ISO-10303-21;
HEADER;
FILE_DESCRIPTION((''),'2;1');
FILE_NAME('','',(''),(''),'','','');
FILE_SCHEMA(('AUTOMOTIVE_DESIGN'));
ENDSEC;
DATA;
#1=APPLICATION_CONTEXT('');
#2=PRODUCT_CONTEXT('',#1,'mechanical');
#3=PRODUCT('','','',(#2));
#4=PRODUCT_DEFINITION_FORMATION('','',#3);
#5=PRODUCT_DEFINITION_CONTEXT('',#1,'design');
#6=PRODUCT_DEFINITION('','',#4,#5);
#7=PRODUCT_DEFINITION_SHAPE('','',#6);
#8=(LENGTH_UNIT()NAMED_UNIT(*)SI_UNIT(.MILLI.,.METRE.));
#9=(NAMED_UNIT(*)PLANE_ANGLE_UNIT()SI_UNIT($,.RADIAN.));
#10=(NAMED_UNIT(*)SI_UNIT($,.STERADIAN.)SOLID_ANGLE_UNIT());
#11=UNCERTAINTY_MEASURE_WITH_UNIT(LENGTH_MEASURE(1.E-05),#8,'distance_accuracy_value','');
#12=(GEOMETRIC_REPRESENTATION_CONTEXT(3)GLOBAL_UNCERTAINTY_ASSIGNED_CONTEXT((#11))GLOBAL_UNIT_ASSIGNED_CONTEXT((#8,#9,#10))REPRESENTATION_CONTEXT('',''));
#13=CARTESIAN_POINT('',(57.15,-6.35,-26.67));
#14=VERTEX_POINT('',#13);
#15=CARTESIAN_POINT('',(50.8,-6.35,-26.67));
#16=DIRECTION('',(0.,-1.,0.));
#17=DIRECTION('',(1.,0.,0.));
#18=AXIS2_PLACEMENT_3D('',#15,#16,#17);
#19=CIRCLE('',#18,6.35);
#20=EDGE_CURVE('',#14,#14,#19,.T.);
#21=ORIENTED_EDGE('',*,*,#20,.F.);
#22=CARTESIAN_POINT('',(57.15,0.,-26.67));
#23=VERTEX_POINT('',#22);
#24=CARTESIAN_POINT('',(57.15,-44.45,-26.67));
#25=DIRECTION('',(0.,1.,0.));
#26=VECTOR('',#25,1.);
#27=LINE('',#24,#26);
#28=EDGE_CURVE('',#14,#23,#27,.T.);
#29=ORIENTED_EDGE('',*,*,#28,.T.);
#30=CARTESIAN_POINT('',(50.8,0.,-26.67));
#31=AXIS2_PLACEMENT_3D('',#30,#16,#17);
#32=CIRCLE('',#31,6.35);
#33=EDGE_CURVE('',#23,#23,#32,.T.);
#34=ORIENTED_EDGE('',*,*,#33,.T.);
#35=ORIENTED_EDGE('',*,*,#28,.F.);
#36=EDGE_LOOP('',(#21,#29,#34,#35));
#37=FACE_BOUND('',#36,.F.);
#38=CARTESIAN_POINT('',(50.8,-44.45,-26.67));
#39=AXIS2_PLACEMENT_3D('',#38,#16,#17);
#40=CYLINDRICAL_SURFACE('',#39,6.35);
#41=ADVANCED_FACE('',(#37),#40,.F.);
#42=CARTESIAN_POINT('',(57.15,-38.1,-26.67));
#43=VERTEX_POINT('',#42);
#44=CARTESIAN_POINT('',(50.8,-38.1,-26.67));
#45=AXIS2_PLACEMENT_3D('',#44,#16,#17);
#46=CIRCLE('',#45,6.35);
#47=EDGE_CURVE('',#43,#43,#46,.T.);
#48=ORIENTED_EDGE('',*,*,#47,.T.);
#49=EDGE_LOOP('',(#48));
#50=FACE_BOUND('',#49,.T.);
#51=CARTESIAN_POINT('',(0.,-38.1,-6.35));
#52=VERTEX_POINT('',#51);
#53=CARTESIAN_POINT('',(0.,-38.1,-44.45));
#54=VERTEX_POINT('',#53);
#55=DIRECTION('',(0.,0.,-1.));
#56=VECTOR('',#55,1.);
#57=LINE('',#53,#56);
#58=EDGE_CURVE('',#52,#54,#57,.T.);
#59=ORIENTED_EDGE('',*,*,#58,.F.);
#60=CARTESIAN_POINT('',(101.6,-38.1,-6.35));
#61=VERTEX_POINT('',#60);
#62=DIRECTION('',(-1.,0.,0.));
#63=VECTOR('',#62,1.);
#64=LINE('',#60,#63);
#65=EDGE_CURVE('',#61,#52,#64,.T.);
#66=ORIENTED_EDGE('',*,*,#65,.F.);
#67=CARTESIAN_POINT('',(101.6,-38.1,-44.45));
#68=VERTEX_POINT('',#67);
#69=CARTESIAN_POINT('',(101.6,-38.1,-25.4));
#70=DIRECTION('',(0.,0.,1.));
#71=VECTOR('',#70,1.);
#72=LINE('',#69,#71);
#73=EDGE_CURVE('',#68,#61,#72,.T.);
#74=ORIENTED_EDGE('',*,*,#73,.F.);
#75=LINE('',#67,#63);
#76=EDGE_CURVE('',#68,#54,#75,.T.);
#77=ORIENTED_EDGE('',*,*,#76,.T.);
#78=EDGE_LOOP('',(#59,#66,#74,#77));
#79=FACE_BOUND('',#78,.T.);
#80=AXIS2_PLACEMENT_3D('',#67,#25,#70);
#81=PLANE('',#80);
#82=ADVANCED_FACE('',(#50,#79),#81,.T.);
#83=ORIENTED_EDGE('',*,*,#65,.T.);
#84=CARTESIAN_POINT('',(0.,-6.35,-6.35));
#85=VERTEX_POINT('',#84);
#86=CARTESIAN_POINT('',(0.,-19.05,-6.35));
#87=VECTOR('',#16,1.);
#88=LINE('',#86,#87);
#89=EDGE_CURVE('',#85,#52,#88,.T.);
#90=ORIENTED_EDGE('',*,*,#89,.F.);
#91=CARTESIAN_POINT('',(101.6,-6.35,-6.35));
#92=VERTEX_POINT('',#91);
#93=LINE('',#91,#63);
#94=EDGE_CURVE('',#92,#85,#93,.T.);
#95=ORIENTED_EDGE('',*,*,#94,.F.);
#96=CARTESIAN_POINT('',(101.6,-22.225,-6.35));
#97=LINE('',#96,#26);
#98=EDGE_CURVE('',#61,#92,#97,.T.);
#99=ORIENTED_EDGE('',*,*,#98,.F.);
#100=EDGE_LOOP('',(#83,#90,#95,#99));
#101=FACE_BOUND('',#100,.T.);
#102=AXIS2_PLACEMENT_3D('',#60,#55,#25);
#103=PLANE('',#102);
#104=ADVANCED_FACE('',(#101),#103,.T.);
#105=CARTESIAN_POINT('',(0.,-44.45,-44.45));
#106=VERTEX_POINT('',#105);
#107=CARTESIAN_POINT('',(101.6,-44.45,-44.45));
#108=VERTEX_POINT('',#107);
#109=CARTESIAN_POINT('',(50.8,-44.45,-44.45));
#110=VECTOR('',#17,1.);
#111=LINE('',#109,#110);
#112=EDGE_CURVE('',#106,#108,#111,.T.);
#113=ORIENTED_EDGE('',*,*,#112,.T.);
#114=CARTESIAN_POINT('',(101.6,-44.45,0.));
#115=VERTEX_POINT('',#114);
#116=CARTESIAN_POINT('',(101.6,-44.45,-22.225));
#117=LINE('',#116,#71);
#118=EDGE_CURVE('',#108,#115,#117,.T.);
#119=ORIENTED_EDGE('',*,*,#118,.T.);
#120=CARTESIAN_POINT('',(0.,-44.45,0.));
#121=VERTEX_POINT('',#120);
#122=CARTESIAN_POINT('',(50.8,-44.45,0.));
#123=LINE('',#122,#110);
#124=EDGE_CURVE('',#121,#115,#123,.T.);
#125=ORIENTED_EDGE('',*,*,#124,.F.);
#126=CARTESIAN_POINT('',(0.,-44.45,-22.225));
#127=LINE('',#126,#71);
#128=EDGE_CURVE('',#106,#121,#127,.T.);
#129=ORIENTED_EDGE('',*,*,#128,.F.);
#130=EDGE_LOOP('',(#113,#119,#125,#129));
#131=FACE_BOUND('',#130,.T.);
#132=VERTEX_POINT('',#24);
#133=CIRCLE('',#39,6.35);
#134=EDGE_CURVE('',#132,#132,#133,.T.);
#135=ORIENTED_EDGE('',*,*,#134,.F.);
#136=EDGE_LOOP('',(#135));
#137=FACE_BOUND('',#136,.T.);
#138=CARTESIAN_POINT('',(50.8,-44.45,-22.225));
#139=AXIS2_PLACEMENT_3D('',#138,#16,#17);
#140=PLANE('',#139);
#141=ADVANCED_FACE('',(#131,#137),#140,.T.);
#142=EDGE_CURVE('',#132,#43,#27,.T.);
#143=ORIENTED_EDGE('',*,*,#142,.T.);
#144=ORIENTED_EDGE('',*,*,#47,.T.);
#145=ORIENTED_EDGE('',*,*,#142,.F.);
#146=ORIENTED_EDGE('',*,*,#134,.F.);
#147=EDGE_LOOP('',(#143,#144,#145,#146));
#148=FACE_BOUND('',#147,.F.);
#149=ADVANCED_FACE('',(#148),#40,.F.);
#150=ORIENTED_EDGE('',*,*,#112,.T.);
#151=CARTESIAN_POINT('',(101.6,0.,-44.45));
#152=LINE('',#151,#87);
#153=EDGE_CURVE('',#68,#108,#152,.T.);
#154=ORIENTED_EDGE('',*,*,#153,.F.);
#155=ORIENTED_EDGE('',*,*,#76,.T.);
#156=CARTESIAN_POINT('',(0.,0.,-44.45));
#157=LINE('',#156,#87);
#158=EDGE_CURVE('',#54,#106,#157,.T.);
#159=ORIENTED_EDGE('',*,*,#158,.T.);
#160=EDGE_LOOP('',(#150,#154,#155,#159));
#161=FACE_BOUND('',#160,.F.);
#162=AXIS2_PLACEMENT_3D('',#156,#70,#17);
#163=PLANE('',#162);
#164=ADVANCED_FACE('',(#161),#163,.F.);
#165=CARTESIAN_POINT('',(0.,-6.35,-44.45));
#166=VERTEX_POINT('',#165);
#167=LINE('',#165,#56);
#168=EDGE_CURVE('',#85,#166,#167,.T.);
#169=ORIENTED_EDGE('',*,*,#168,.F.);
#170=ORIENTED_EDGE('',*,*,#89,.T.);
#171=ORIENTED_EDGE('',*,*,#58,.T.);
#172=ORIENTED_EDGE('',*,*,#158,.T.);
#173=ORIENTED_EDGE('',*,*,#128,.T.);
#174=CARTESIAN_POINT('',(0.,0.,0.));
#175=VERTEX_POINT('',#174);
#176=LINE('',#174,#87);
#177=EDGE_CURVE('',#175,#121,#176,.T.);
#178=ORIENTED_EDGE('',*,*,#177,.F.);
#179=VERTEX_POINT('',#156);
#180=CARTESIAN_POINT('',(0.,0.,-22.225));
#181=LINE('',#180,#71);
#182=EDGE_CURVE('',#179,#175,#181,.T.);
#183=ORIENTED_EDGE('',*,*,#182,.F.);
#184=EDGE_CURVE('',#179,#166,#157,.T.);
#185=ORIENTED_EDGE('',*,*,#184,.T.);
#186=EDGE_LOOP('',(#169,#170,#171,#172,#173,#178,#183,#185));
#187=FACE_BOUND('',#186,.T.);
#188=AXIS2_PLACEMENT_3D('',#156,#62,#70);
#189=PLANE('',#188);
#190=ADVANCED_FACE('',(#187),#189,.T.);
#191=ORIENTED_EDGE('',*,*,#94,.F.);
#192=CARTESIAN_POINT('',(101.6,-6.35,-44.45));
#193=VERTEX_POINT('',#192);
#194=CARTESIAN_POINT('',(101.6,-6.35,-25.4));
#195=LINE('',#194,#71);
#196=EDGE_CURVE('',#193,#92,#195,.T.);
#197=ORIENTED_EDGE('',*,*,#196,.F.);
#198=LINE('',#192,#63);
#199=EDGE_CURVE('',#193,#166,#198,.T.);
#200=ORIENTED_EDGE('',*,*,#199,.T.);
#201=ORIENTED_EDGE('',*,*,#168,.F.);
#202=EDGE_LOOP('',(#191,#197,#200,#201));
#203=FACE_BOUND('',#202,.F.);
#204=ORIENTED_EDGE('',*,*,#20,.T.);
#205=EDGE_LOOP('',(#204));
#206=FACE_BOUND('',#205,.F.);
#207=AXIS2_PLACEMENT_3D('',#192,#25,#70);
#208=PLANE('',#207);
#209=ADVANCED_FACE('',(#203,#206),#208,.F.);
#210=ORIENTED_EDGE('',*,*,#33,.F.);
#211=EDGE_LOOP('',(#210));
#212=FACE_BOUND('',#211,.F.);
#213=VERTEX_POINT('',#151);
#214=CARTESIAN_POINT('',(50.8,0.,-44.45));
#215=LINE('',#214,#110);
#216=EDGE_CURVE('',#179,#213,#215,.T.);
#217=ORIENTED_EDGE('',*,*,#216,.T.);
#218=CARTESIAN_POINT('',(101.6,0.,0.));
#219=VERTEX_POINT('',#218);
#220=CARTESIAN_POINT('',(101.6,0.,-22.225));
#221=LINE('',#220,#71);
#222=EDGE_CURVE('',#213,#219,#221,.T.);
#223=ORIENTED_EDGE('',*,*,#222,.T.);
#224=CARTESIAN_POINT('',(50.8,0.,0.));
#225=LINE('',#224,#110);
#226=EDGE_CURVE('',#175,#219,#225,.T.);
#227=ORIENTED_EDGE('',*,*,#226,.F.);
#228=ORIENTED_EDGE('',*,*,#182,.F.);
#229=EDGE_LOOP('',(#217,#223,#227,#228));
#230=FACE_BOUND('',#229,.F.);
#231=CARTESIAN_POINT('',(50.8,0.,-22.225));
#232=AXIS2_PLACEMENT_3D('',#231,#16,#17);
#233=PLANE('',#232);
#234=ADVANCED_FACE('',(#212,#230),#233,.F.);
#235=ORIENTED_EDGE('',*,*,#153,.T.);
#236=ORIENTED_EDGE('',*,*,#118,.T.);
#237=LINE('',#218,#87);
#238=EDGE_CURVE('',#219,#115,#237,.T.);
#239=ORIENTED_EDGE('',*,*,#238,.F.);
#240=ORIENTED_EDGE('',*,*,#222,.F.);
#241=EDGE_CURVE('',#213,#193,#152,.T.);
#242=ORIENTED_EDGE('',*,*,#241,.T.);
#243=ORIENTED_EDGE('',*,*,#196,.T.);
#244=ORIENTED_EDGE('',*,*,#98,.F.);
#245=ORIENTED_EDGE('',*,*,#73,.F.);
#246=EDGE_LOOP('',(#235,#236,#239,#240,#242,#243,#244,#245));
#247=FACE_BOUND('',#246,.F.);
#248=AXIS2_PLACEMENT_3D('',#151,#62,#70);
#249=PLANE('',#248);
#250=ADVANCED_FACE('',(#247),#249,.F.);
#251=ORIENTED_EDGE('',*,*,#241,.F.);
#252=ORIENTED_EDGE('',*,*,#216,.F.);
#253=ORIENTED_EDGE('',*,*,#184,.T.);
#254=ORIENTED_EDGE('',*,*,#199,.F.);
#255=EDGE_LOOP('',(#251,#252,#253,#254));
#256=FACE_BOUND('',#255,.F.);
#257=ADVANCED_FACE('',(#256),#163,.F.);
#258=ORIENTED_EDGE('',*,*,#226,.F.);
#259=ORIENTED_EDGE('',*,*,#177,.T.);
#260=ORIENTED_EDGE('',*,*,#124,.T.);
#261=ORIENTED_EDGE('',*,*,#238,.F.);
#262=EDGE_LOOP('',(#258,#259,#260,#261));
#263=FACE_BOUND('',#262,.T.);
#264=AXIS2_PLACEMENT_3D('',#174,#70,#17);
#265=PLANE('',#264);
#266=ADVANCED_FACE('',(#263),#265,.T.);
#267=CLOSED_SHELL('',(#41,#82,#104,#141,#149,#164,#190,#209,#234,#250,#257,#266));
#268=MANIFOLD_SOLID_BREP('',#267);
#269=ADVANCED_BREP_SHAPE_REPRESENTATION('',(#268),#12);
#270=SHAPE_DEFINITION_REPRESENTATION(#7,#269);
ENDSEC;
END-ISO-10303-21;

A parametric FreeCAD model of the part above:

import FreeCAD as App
import Part
import Sketcher

V = App.Vector
Q = App.Units.Quantity

doc = App.newDocument("Part")
params = doc.addObject("Spreadsheet::Sheet", "Params")
for row, (alias, value) in enumerate([
    ("sketch1_width", "4 in"),
    ("sketch1_height", "1.75 in"),
    ("pad1_length", "1.75 in"),
    ("sketch2_height", "1.5 in"),
    ("sketch2_width", "1.25 in"),
    ("sketch3_diameter", "0.5 in"),
], start=1):
    params.set(f"A{row}", alias)
    params.set(f"B{row}", "=" + value)
    params.setAlias(f"B{row}", alias)

body = doc.addObject("PartDesign::Body", "Body")

# Sketch on XZ plane
sketch1 = body.newObject("Sketcher::SketchObject", "Sketch")
sketch1.AttachmentSupport = (doc.getObject("XZ_Plane"), [""])
sketch1.MapMode = "FlatFace"
sketch1.addGeometry([
    Part.LineSegment(V(0, 0, 0), V(0, -44.45, 0)),
    Part.LineSegment(V(0, -44.45, 0), V(101.6, -44.45, 0)),
    Part.LineSegment(V(101.6, -44.45, 0), V(101.6, 0, 0)),
    Part.LineSegment(V(101.6, 0, 0), V(0, 0, 0)),
], False)
sketch1.addConstraint([
    Sketcher.Constraint("Coincident", 0, 2, 1, 1),
    Sketcher.Constraint("Coincident", 1, 2, 2, 1),
    Sketcher.Constraint("Coincident", 2, 2, 3, 1),
    Sketcher.Constraint("Coincident", 3, 2, 0, 1),
    Sketcher.Constraint("Vertical", 0),
    Sketcher.Constraint("Horizontal", 1),
    Sketcher.Constraint("Vertical", 2),
    Sketcher.Constraint("Horizontal", 3),
    Sketcher.Constraint("Coincident", 3, 2, -1, 1),
    Sketcher.Constraint("DistanceX", 1, 1, 1, 2, Q("4 in")),
    Sketcher.Constraint("DistanceY", 0, 2, 0, 1, Q("1.75 in")),
])
sketch1.setExpression("Constraints[9]", "Params.sketch1_width")
sketch1.setExpression("Constraints[10]", "Params.sketch1_height")
pad1 = body.newObject("PartDesign::Pad", "Pad")
pad1.Profile = sketch1
pad1.setExpression("Length", "Params.pad1_length")

# Sketch on YZ plane
sketch2 = body.newObject("Sketcher::SketchObject", "Sketch001")
sketch2.AttachmentSupport = (doc.getObject("YZ_Plane"), [""])
sketch2.MapMode = "FlatFace"
sketch2.AttachmentOffset = App.Placement(V(0, 0, 4 * 25.4), App.Rotation())
sketch2.addGeometry([
    Part.LineSegment(V(-38.1, -6.35, 0), V(-38.1, -44.45, 0)),
    Part.LineSegment(V(-38.1, -44.45, 0), V(-6.35, -44.45, 0)),
    Part.LineSegment(V(-6.35, -44.45, 0), V(-6.35, -6.35, 0)),
    Part.LineSegment(V(-6.35, -6.35, 0), V(-38.1, -6.35, 0)),
], False)
sketch2.addConstraint([
    Sketcher.Constraint("Coincident", 0, 2, 1, 1),
    Sketcher.Constraint("Coincident", 1, 2, 2, 1),
    Sketcher.Constraint("Coincident", 2, 2, 3, 1),
    Sketcher.Constraint("Coincident", 3, 2, 0, 1),
    Sketcher.Constraint("Vertical", 0),
    Sketcher.Constraint("Horizontal", 1),
    Sketcher.Constraint("Vertical", 2),
    Sketcher.Constraint("Horizontal", 3),
    Sketcher.Constraint("DistanceY", 0, 2, 0, 1, Q("1.5 in")),
    Sketcher.Constraint("DistanceX", 1, 1, 1, 2, Q("1.25 in")),
    Sketcher.Constraint("DistanceX", 0, 2, -1, 1, Q("1.5 in")),
    Sketcher.Constraint("DistanceY", 0, 2, -1, 1, Q("1.75 in")),
])
sketch2.setExpression("Constraints[8]", "Params.sketch2_height")
sketch2.setExpression("Constraints[9]", "Params.sketch2_width")
pocket1 = body.newObject("PartDesign::Pocket", "Pocket")
pocket1.Profile = sketch2
pocket1.Type = "ThroughAll"

# Sketch on XZ plane
sketch3 = body.newObject("Sketcher::SketchObject", "Sketch002")
sketch3.AttachmentSupport = (doc.getObject("XZ_Plane"), [""])
sketch3.MapMode = "FlatFace"
sketch3.AttachmentOffset = App.Placement(V(0, 0, 1.75 * 25.4), App.Rotation())
sketch3.addGeometry(Part.Circle(V(50.8, -26.67, 0), V(0, 0, 1), 6.35), False)
sketch3.addConstraint([
    Sketcher.Constraint("Diameter", 0, Q("0.5 in")),
    Sketcher.Constraint("DistanceX", -1, 1, 0, 3, Q("2 in")),
    Sketcher.Constraint("DistanceY", 0, 3, -1, 1, Q("1.05 in")),
])
sketch3.setExpression("Constraints[0]", "Params.sketch3_diameter")
pocket2 = body.newObject("PartDesign::Pocket", "Pocket001")
pocket2.Profile = sketch3
pocket2.Type = "ThroughAll"

doc.recompute()
